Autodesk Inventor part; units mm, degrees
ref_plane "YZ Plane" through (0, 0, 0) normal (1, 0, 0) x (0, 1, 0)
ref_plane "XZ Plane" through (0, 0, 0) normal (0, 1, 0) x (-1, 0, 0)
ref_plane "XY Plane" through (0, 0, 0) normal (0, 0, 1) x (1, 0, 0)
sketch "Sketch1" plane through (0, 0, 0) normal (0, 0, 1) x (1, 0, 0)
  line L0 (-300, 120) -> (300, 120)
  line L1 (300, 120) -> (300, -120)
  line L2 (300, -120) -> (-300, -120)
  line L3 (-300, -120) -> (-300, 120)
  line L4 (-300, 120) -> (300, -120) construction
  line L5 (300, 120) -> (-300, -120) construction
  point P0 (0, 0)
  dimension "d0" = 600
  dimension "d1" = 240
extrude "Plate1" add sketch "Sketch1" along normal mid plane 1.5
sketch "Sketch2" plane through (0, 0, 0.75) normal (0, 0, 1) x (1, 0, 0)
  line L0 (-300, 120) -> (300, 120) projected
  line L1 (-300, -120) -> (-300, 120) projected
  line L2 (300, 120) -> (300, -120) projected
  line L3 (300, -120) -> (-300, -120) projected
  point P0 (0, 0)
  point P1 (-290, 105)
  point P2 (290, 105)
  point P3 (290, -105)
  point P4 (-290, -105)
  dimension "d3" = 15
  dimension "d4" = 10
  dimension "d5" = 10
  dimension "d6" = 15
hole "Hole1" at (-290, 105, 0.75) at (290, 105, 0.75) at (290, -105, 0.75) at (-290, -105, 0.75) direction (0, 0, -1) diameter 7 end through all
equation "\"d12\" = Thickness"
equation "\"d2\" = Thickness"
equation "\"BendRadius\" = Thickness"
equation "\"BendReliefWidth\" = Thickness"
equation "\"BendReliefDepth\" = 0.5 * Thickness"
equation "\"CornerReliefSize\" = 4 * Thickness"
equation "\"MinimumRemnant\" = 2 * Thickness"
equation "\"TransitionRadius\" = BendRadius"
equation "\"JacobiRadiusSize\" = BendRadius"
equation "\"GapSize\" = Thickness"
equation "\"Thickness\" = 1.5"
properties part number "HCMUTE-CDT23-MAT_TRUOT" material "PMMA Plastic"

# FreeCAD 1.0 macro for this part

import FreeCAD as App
import Part
import Sketcher
from FreeCAD import Vector
Q = App.Units.Quantity

doc = App.newDocument("Part")
body = doc.addObject("PartDesign::Body", "Body")

sketch1 = doc.addObject("Sketcher::SketchObject", "Sketch")
body.addObject(sketch1)
sketch1.AttachmentSupport = (doc.XY_Plane, [""])
sketch1.MapMode = "FlatFace"
sketch1.addGeometry([
    Part.LineSegment(Vector(300, 120, 0), Vector(-300, 120, 0)),
    Part.LineSegment(Vector(-300, 120, 0), Vector(-300, -120, 0)),
    Part.LineSegment(Vector(-300, -120, 0), Vector(300, -120, 0)),
    Part.LineSegment(Vector(300, -120, 0), Vector(300, 120, 0)),
], False)
sketch1.addConstraint([
    Sketcher.Constraint("Coincident", 0, 2, 1, 1),
    Sketcher.Constraint("Coincident", 1, 2, 2, 1),
    Sketcher.Constraint("Coincident", 2, 2, 3, 1),
    Sketcher.Constraint("Coincident", 3, 2, 0, 1),
    Sketcher.Constraint("Horizontal", 0),
    Sketcher.Constraint("Vertical", 1),
    Sketcher.Constraint("Horizontal", 2),
    Sketcher.Constraint("Vertical", 3),
    Sketcher.Constraint("Symmetric", 0, 2, 2, 2, -1, 1),
    Sketcher.Constraint("DistanceX", 0, 2, 0, 1, Q("600 mm")),
    Sketcher.Constraint("DistanceY", 1, 2, 1, 1, Q("240 mm")),
])
pad1 = doc.addObject("PartDesign::Pad", "Pad")
body.addObject(pad1)
pad1.Profile = sketch1
pad1.Length = 1.5
pad1.Midplane = True

sketch2 = doc.addObject("Sketcher::SketchObject", "Sketch001")
body.addObject(sketch2)
sketch2.AttachmentSupport = (doc.XY_Plane, [""])
sketch2.MapMode = "FlatFace"
sketch2.AttachmentOffset = App.Placement(Vector(0, 0, 0.75), App.Rotation())
sketch2.addGeometry([
    Part.Circle(Vector(-290, 105, 0), Vector(0, 0, 1), 3.5),
    Part.Circle(Vector(290, 105, 0), Vector(0, 0, 1), 3.5),
    Part.Circle(Vector(290, -105, 0), Vector(0, 0, 1), 3.5),
    Part.Circle(Vector(-290, -105, 0), Vector(0, 0, 1), 3.5),
], False)
sketch2.addConstraint([
    Sketcher.Constraint("Equal", 0, 1),
    Sketcher.Constraint("Equal", 1, 2),
    Sketcher.Constraint("Equal", 2, 3),
    Sketcher.Constraint("Symmetric", 0, 3, 2, 3, -1, 1),
    Sketcher.Constraint("Symmetric", 1, 3, 3, 3, -1, 1),
    Sketcher.Constraint("Symmetric", 0, 3, 1, 3, -2),
    Sketcher.Constraint("Diameter", 0, Q("7 mm")),
    Sketcher.Constraint("DistanceX", 0, 3, -1, 1, Q("290 mm")),
    Sketcher.Constraint("DistanceY", -1, 1, 0, 3, Q("105 mm")),
])
doc.recompute()
hole = doc.addObject("PartDesign::Hole", "Hole")
body.addObject(hole)
hole.Profile = sketch2
hole.ThreadType = "None"
hole.Diameter = 7
hole.DepthType = "ThroughAll"

doc.recompute()
